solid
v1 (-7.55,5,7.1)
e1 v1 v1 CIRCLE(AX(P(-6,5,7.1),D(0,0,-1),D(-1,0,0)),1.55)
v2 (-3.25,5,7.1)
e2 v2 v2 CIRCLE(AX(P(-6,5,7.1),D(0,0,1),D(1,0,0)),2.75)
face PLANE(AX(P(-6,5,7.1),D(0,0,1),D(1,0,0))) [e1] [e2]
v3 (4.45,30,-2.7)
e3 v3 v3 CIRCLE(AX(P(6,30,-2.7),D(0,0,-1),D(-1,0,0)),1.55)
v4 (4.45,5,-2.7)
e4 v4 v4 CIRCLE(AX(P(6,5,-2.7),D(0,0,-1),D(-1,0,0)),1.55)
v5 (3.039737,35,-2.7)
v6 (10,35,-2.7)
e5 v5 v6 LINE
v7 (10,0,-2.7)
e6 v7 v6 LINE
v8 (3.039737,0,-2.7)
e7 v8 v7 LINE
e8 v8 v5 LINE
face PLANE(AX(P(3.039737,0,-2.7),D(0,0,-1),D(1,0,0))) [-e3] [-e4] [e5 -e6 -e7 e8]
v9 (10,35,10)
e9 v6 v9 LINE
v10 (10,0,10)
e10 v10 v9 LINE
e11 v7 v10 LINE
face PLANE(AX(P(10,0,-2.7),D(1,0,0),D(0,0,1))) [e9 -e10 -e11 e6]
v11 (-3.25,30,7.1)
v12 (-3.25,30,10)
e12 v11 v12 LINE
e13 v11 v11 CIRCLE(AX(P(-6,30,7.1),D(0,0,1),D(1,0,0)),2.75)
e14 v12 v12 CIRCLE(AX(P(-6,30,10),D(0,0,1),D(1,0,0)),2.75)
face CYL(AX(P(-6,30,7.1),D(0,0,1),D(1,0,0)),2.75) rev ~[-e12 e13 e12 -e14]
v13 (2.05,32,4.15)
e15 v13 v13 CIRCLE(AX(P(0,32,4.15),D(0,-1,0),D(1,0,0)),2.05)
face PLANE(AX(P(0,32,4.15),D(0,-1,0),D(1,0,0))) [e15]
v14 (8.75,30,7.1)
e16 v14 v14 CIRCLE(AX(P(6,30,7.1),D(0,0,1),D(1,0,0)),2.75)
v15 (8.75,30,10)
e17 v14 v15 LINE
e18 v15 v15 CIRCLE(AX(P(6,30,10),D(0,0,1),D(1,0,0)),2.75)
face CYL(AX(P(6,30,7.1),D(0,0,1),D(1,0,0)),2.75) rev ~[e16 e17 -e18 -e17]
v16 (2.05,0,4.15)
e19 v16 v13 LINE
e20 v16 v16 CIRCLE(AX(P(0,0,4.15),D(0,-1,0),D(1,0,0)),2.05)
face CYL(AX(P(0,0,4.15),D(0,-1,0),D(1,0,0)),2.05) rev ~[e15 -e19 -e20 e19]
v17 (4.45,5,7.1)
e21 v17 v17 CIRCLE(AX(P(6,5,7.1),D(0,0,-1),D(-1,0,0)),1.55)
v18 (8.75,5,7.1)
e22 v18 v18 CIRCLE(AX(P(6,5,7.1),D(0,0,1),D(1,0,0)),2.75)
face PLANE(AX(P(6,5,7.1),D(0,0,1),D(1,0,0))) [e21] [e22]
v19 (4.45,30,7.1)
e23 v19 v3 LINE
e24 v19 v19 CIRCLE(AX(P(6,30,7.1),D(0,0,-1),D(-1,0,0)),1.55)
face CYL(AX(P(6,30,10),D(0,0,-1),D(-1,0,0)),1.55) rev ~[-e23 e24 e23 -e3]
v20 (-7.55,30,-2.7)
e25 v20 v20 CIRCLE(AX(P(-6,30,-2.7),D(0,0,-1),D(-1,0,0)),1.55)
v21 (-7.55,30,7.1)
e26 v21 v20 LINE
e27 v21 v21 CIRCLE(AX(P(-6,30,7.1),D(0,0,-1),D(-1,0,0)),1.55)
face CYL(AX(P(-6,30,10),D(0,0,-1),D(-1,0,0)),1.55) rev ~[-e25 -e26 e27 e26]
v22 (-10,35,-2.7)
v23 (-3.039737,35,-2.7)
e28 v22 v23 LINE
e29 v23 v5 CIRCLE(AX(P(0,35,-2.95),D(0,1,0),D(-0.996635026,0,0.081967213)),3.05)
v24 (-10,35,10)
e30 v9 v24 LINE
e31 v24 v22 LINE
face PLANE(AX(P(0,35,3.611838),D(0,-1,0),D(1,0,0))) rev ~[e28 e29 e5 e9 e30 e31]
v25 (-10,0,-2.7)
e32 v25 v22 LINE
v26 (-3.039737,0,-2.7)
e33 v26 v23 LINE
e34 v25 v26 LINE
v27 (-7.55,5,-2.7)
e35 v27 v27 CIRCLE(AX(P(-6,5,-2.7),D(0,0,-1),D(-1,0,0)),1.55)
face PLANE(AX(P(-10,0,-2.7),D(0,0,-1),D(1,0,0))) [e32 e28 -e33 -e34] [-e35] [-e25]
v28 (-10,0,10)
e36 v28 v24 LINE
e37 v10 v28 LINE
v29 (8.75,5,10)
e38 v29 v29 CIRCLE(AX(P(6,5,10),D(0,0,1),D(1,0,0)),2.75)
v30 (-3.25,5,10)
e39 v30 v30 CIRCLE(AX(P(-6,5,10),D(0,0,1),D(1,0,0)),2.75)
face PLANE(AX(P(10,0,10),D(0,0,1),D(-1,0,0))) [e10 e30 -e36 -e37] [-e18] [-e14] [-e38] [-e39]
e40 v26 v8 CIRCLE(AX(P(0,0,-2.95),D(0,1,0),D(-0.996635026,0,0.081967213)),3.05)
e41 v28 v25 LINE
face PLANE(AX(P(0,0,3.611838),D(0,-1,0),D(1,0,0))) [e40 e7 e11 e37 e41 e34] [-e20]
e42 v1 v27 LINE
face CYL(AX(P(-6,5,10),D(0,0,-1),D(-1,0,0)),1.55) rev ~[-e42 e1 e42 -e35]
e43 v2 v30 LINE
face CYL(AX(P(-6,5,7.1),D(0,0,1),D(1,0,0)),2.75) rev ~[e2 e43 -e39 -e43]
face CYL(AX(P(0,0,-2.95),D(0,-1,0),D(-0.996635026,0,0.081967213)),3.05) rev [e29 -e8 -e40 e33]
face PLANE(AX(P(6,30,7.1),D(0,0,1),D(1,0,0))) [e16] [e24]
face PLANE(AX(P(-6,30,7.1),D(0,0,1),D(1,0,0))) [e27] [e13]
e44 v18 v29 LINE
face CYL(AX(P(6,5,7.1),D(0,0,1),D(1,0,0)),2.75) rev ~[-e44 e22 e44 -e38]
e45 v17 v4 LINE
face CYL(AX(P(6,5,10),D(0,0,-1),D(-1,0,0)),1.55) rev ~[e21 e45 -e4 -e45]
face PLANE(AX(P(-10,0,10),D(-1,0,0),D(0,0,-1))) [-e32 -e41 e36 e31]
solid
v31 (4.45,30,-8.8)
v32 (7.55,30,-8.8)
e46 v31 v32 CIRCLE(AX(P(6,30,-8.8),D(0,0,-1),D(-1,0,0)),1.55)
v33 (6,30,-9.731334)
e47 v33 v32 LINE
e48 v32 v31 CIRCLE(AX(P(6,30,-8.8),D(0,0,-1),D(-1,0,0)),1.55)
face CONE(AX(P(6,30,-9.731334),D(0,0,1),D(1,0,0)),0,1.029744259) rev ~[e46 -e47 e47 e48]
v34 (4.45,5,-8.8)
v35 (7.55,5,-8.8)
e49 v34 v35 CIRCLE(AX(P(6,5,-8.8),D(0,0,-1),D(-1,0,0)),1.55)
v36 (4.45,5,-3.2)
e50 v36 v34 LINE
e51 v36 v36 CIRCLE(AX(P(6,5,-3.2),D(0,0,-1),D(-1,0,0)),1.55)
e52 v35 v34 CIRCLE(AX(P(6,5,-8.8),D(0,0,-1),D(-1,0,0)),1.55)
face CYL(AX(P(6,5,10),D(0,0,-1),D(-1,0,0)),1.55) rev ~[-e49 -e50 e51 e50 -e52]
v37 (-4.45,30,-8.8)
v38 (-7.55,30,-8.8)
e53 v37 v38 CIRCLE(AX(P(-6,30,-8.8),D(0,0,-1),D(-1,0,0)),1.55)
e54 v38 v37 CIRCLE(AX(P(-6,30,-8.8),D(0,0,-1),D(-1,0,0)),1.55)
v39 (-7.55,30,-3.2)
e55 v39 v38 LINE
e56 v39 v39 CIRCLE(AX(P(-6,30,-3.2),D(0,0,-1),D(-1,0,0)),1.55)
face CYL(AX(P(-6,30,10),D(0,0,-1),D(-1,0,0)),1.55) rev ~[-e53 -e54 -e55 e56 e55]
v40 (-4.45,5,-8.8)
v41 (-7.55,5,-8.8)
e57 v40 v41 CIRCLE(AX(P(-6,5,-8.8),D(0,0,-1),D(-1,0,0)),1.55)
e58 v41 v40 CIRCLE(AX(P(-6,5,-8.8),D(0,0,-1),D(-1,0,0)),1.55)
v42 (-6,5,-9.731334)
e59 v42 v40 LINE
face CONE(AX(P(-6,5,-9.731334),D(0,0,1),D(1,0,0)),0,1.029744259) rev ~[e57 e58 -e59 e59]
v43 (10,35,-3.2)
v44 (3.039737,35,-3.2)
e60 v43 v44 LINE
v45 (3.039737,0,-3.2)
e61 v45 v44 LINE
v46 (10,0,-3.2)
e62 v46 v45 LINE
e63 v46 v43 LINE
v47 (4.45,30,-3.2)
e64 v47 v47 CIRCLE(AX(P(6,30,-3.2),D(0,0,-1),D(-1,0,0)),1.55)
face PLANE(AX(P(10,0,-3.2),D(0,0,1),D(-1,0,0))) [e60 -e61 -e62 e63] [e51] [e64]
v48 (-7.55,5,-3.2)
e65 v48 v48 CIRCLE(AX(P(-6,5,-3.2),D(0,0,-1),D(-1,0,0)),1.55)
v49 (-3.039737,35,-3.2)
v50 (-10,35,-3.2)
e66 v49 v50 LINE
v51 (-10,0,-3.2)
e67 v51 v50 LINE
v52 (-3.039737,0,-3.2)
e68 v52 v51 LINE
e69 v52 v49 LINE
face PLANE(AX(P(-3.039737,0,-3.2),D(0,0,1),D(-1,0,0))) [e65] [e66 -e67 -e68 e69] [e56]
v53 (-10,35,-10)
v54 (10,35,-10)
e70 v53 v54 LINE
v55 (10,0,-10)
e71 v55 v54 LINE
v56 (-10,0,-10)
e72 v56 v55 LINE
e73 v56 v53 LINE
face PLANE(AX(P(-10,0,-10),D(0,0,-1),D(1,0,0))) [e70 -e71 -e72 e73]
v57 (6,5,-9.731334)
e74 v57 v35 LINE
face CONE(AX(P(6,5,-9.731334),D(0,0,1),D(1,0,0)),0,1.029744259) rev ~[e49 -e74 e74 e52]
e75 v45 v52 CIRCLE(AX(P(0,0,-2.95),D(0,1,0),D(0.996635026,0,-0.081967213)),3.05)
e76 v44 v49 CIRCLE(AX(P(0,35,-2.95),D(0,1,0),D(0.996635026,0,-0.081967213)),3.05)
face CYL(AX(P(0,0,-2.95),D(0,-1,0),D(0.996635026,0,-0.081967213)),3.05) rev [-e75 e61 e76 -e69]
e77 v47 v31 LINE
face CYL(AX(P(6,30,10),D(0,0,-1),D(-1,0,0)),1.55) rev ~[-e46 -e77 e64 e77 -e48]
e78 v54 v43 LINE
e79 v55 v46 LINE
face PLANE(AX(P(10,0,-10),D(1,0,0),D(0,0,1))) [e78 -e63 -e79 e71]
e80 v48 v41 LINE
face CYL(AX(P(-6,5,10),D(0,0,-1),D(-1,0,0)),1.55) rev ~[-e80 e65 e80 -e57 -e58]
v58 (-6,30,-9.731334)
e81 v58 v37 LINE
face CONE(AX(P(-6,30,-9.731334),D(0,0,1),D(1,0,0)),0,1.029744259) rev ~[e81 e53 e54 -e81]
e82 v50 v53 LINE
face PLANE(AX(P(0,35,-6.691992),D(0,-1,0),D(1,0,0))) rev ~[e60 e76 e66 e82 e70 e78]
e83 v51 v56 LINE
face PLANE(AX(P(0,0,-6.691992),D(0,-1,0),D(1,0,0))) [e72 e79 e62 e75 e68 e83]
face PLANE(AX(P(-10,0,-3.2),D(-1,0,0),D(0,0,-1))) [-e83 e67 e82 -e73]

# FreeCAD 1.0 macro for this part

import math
import FreeCAD as App
import Part
import Sketcher

doc = App.newDocument("Part")
body = doc.addObject("PartDesign::Body", "Body")

sketch1 = body.newObject("Sketcher::SketchObject", "Sketch")
sketch1.AttachmentSupport = (doc.getObject("XZ_Plane"), [""])
sketch1.MapMode = "FlatFace"
sketch1.addGeometry([
    Part.LineSegment(App.Vector(10, -2.7, 0), App.Vector(10, 10, 0)),
    Part.LineSegment(App.Vector(10, 10, 0), App.Vector(-10, 10, 0)),
    Part.LineSegment(App.Vector(-10, 10, 0), App.Vector(-10, -2.7, 0)),
    Part.LineSegment(App.Vector(-10, -2.7, 0), App.Vector(-3, -2.7, 0)),
    Part.ArcOfCircle(Part.Circle(App.Vector(0, -3, 0), App.Vector(0, 0, 1), 3), math.radians(5), math.radians(175)),
    Part.LineSegment(App.Vector(3, -2.7, 0), App.Vector(10, -2.7, 0)),
], False)
sketch1.addConstraint([
    Sketcher.Constraint("Coincident", 0, 2, 1, 1),
    Sketcher.Constraint("Coincident", 1, 2, 2, 1),
    Sketcher.Constraint("Coincident", 2, 2, 3, 1),
    Sketcher.Constraint("Coincident", 3, 2, 4, 2),
    Sketcher.Constraint("Coincident", 4, 1, 5, 1),
    Sketcher.Constraint("Coincident", 5, 2, 0, 1),
    Sketcher.Constraint("Vertical", 0),
    Sketcher.Constraint("Horizontal", 1),
    Sketcher.Constraint("Vertical", 2),
    Sketcher.Constraint("Horizontal", 3),
    Sketcher.Constraint("Horizontal", 5),
    Sketcher.Constraint("Symmetric", 3, 2, 4, 1, -2),
    Sketcher.Constraint("Equal", 3, 5),
    Sketcher.Constraint("DistanceX", 1, 2, 1, 1, 20.0),
    Sketcher.Constraint("Radius", 4, 3.05),
    Sketcher.Constraint("DistanceY", 0, 1, 0, 2, 12.7),
    Sketcher.Constraint("DistanceY", -1, 1, 0, 2, 10.0),
    Sketcher.Constraint("DistanceY", 4, 3, -1, 1, 2.95),
])
pad1 = body.newObject("PartDesign::Pad", "Pad")
pad1.Profile = sketch1
pad1.Length = 35
pad1.Reversed = True

sketch2 = body.newObject("Sketcher::SketchObject", "Sketch001")
sketch2.AttachmentSupport = (doc.getObject("XZ_Plane"), [""])
sketch2.MapMode = "FlatFace"
sketch2.addGeometry(Part.Circle(App.Vector(0, 4.2, 0), App.Vector(0, 0, 1), 2), False)
sketch2.addConstraint([
    Sketcher.Constraint("PointOnObject", 0, 3, -2),
    Sketcher.Constraint("Diameter", 0, 4.1),
    Sketcher.Constraint("DistanceY", -1, 1, 0, 3, 4.15),
])
pocket1 = body.newObject("PartDesign::Pocket", "Pocket")
pocket1.Profile = sketch2
pocket1.Length = 32

sketch3 = body.newObject("Sketcher::SketchObject", "Sketch002")
sketch3.AttachmentSupport = (doc.getObject("XY_Plane"), [""])
sketch3.MapMode = "FlatFace"
sketch3.AttachmentOffset = App.Placement(App.Vector(0, 0, 10), App.Rotation())
sketch3.addGeometry([
    Part.Circle(App.Vector(-6, 30, 0), App.Vector(0, 0, 1), 1.6),
    Part.Circle(App.Vector(6, 30, 0), App.Vector(0, 0, 1), 1.6),
    Part.Circle(App.Vector(-6, 5, 0), App.Vector(0, 0, 1), 1.6),
    Part.Circle(App.Vector(6, 5, 0), App.Vector(0, 0, 1), 1.6),
], False)
sketch3.addConstraint([
    Sketcher.Constraint("Equal", 0, 1),
    Sketcher.Constraint("Equal", 1, 2),
    Sketcher.Constraint("Equal", 2, 3),
    Sketcher.Constraint("Symmetric", 0, 3, 1, 3, -2),
    Sketcher.Constraint("Symmetric", 2, 3, 3, 3, -2),
    Sketcher.Constraint("Vertical", 0, 3, 2, 3),
    Sketcher.Constraint("Diameter", 0, 3.1),
    Sketcher.Constraint("DistanceX", 0, 3, -1, 1, 6.0),
    Sketcher.Constraint("DistanceY", -1, 1, 0, 3, 30.0),
    Sketcher.Constraint("DistanceY", -1, 1, 2, 3, 5.0),
])
doc.recompute()
hole = body.newObject("PartDesign::Hole", "Hole")
hole.Profile = sketch3
hole.ThreadType = "None"
hole.Diameter = 3.1
hole.DepthType = "Dimension"
hole.Depth = 18.8
hole.DrillPoint = "Angled"
hole.DrillPointAngle = 118
hole.HoleCutType = "Counterbore"
hole.HoleCutDiameter = 5.5
hole.HoleCutDepth = 2.9
body2 = doc.addObject("PartDesign::Body", "Body001")

sketch4 = body2.newObject("Sketcher::SketchObject", "Sketch003")
sketch4.AttachmentSupport = (doc.getObject("XZ_Plane001"), [""])
sketch4.MapMode = "FlatFace"
sketch4.addGeometry([
    Part.LineSegment(App.Vector(10, -10, 0), App.Vector(10, -3.2, 0)),
    Part.LineSegment(App.Vector(10, -3.2, 0), App.Vector(3, -3.2, 0)),
    Part.ArcOfCircle(Part.Circle(App.Vector(0, -3, 0), App.Vector(0, 0, 1), 3), math.radians(-175), math.radians(-5)),
    Part.LineSegment(App.Vector(-3, -3.2, 0), App.Vector(-10, -3.2, 0)),
    Part.LineSegment(App.Vector(-10, -3.2, 0), App.Vector(-10, -10, 0)),
    Part.LineSegment(App.Vector(-10, -10, 0), App.Vector(10, -10, 0)),
], False)
sketch4.addConstraint([
    Sketcher.Constraint("Coincident", 0, 2, 1, 1),
    Sketcher.Constraint("Coincident", 1, 2, 2, 2),
    Sketcher.Constraint("Coincident", 2, 1, 3, 1),
    Sketcher.Constraint("Coincident", 3, 2, 4, 1),
    Sketcher.Constraint("Coincident", 4, 2, 5, 1),
    Sketcher.Constraint("Coincident", 5, 2, 0, 1),
    Sketcher.Constraint("Vertical", 0),
    Sketcher.Constraint("Horizontal", 1),
    Sketcher.Constraint("Horizontal", 3),
    Sketcher.Constraint("Vertical", 4),
    Sketcher.Constraint("Horizontal", 5),
    Sketcher.Constraint("Symmetric", 1, 2, 2, 1, -2),
    Sketcher.Constraint("Equal", 1, 3),
    Sketcher.Constraint("DistanceX", 5, 1, 5, 2, 20.0),
    Sketcher.Constraint("Radius", 2, 3.05),
    Sketcher.Constraint("DistanceY", 0, 1, 0, 2, 6.8),
    Sketcher.Constraint("DistanceY", 4, 2, -1, 1, 10.0),
    Sketcher.Constraint("DistanceY", 2, 3, -1, 1, 2.95),
])
pad2 = body2.newObject("PartDesign::Pad", "Pad001")
pad2.Profile = sketch4
pad2.Length = 35
pad2.Reversed = True

sketch5 = body2.newObject("Sketcher::SketchObject", "Sketch004")
sketch5.AttachmentSupport = (doc.getObject("XY_Plane001"), [""])
sketch5.MapMode = "FlatFace"
sketch5.AttachmentOffset = App.Placement(App.Vector(0, 0, 10), App.Rotation())
sketch5.addGeometry([
    Part.Circle(App.Vector(-6, 30, 0), App.Vector(0, 0, 1), 1.6),
    Part.Circle(App.Vector(6, 30, 0), App.Vector(0, 0, 1), 1.6),
    Part.Circle(App.Vector(-6, 5, 0), App.Vector(0, 0, 1), 1.6),
    Part.Circle(App.Vector(6, 5, 0), App.Vector(0, 0, 1), 1.6),
], False)
sketch5.addConstraint([
    Sketcher.Constraint("Equal", 0, 1),
    Sketcher.Constraint("Equal", 1, 2),
    Sketcher.Constraint("Equal", 2, 3),
    Sketcher.Constraint("Symmetric", 0, 3, 1, 3, -2),
    Sketcher.Constraint("Symmetric", 2, 3, 3, 3, -2),
    Sketcher.Constraint("Vertical", 0, 3, 2, 3),
    Sketcher.Constraint("Diameter", 0, 3.1),
    Sketcher.Constraint("DistanceX", 0, 3, -1, 1, 6.0),
    Sketcher.Constraint("DistanceY", -1, 1, 0, 3, 30.0),
    Sketcher.Constraint("DistanceY", -1, 1, 2, 3, 5.0),
])
doc.recompute()
hole2 = body2.newObject("PartDesign::Hole", "Hole001")
hole2.Profile = sketch5
hole2.ThreadType = "None"
hole2.Diameter = 3.1
hole2.DepthType = "Dimension"
hole2.Depth = 18.8
hole2.DrillPoint = "Angled"
hole2.DrillPointAngle = 118
hole2.HoleCutType = "Counterbore"
hole2.HoleCutDiameter = 5.5
hole2.HoleCutDepth = 2.9

doc.recompute()
